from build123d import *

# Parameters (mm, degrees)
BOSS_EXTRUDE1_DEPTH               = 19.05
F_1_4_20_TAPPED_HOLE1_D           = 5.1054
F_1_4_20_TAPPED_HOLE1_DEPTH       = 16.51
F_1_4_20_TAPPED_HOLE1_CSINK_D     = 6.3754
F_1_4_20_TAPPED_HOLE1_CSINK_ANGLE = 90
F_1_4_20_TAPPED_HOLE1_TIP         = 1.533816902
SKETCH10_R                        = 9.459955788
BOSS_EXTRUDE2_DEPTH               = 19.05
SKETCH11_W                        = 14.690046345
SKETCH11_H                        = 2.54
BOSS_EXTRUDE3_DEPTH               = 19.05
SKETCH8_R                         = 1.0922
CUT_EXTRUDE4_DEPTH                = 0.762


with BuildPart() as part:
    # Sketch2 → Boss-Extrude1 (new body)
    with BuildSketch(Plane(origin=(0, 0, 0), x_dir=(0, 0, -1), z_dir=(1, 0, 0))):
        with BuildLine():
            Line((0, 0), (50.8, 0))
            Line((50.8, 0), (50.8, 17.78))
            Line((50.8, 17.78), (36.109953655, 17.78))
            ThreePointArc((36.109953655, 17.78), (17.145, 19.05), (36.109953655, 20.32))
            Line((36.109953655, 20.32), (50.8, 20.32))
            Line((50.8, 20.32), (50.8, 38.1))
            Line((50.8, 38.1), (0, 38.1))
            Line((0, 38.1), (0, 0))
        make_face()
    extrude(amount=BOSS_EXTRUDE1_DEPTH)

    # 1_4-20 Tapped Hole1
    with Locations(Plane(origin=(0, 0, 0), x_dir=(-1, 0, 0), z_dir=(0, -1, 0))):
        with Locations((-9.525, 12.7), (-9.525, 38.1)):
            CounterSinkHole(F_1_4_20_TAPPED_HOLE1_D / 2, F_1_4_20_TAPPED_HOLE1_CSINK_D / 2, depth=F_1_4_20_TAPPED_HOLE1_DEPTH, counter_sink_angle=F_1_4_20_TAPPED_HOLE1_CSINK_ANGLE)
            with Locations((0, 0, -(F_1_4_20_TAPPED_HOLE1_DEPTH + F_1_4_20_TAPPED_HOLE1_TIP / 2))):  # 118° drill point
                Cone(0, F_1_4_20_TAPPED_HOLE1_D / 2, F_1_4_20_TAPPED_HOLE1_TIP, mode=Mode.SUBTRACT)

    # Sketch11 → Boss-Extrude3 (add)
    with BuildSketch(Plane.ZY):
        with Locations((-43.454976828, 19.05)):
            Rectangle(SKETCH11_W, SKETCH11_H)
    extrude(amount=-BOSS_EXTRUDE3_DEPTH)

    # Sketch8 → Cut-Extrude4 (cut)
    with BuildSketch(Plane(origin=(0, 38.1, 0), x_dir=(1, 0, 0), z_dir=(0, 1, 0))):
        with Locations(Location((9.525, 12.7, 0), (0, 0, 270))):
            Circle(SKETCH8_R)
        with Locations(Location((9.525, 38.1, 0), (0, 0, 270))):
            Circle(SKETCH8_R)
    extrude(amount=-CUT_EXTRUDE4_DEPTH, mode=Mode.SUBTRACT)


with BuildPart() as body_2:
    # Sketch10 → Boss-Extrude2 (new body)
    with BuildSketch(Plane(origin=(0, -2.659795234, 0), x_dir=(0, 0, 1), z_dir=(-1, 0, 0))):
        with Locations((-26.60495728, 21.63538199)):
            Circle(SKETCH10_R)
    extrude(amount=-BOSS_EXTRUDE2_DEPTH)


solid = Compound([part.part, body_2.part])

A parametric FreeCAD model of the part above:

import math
import FreeCAD as App
import Part
import Sketcher
Q = App.Units.Quantity

doc = App.newDocument("Part")
body = doc.addObject("PartDesign::Body", "Body")

# Sketch on YZ plane
sketch1 = body.newObject("Sketcher::SketchObject", "Sketch")
sketch1.AttachmentSupport = (doc.getObject("YZ_Plane"), [""])
sketch1.MapMode = "FlatFace"
sketch1.addGeometry([
    Part.LineSegment(App.Vector(0, 0, 0), App.Vector(0, -50.8, 0)),  # 0
    Part.LineSegment(App.Vector(0, -50.8, 0), App.Vector(17.8, -50.8, 0)),  # 1
    Part.LineSegment(App.Vector(17.8, -50.8, 0), App.Vector(17.8, -36.1, 0)),  # 2
    Part.ArcOfCircle(Part.Circle(App.Vector(19.1, -26.7, 0), App.Vector(0, 0, 1), 9.5), math.radians(-82), math.radians(262)),  # 3
    Part.LineSegment(App.Vector(20.3, -36.1, 0), App.Vector(20.3, -50.8, 0)),  # 4
    Part.LineSegment(App.Vector(20.3, -50.8, 0), App.Vector(38.1, -50.8, 0)),  # 5
    Part.LineSegment(App.Vector(38.1, -50.8, 0), App.Vector(38.1, 0, 0)),  # 6
    Part.LineSegment(App.Vector(38.1, 0, 0), App.Vector(0, 0, 0)),  # 7
], False)
sketch1.addConstraint([
    Sketcher.Constraint("Coincident", 0, 2, 1, 1),
    Sketcher.Constraint("Coincident", 1, 2, 2, 1),
    Sketcher.Constraint("Coincident", 2, 2, 3, 2),
    Sketcher.Constraint("Coincident", 3, 1, 4, 1),
    Sketcher.Constraint("Coincident", 4, 2, 5, 1),
    Sketcher.Constraint("Coincident", 5, 2, 6, 1),
    Sketcher.Constraint("Coincident", 6, 2, 7, 1),
    Sketcher.Constraint("Coincident", 7, 2, 0, 1),
    Sketcher.Constraint("Vertical", 0),
    Sketcher.Constraint("Horizontal", 1),
    Sketcher.Constraint("Vertical", 2),
    Sketcher.Constraint("Vertical", 4),
    Sketcher.Constraint("Horizontal", 5),
    Sketcher.Constraint("Vertical", 6),
    Sketcher.Constraint("Horizontal", 7),
    Sketcher.Constraint("Coincident", 7, 2, -1, 1),
    Sketcher.Constraint("Horizontal", 2, 2, 3, 1),
    Sketcher.Constraint("Horizontal", 1, 2, 4, 2),
    Sketcher.Constraint("Equal", 1, 5),
    Sketcher.Constraint("DistanceY", 0, 2, 0, 1, Q("2 in")),
    Sketcher.Constraint("DistanceX", 1, 1, 1, 2, Q("0.7 in")),
    Sketcher.Constraint("DistanceX", 7, 2, 7, 1, Q("1.5 in")),
    Sketcher.Constraint("Radius", 3, Q("0.375 in")),
    Sketcher.Constraint("DistanceY", 3, 3, -1, 1, Q("1.05 in")),
])
pad1 = body.newObject("PartDesign::Pad", "Pad")
pad1.Profile = sketch1
pad1.Length = Q("0.75 in")

# Sketch on XZ plane
sketch2 = body.newObject("Sketcher::SketchObject", "Sketch001")
sketch2.AttachmentSupport = (doc.getObject("XZ_Plane"), [""])
sketch2.MapMode = "FlatFace"
sketch2.addGeometry([
    Part.Circle(App.Vector(9.5, -12.7, 0), App.Vector(0, 0, 1), 2.6),
    Part.Circle(App.Vector(9.5, -38.1, 0), App.Vector(0, 0, 1), 2.6),
], False)
sketch2.addConstraint([
    Sketcher.Constraint("Equal", 0, 1),
    Sketcher.Constraint("Vertical", 0, 3, 1, 3),
    Sketcher.Constraint("Diameter", 0, Q("0.201 in")),
    Sketcher.Constraint("DistanceY", 1, 3, 0, 3, Q("1 in")),
    Sketcher.Constraint("DistanceY", 0, 3, -1, 1, Q("0.5 in")),
    Sketcher.Constraint("DistanceX", -1, 1, 0, 3, Q("0.375 in")),
])
doc.recompute()
hole = body.newObject("PartDesign::Hole", "Hole")
hole.Profile = sketch2
hole.ThreadType = "None"
hole.Diameter = Q("0.201 in")
hole.DepthType = "Dimension"
hole.Depth = Q("0.65 in")
hole.DrillPoint = "Angled"
hole.DrillPointAngle = 118
hole.HoleCutType = "Countersink"
hole.HoleCutDiameter = Q("0.251 in")
hole.HoleCutCountersinkAngle = 90

# Sketch on YZ plane
sketch3 = body.newObject("Sketcher::SketchObject", "Sketch002")
sketch3.AttachmentSupport = (doc.getObject("YZ_Plane"), [""])
sketch3.MapMode = "FlatFace"
sketch3.addGeometry([
    Part.LineSegment(App.Vector(20.3, -50.8, 0), App.Vector(17.8, -50.8, 0)),
    Part.LineSegment(App.Vector(17.8, -50.8, 0), App.Vector(17.8, -36.1, 0)),
    Part.LineSegment(App.Vector(17.8, -36.1, 0), App.Vector(20.3, -36.1, 0)),
    Part.LineSegment(App.Vector(20.3, -36.1, 0), App.Vector(20.3, -50.8, 0)),
], False)
sketch3.addConstraint([
    Sketcher.Constraint("Coincident", 0, 2, 1, 1),
    Sketcher.Constraint("Coincident", 1, 2, 2, 1),
    Sketcher.Constraint("Coincident", 2, 2, 3, 1),
    Sketcher.Constraint("Coincident", 3, 2, 0, 1),
    Sketcher.Constraint("Horizontal", 0),
    Sketcher.Constraint("Vertical", 1),
    Sketcher.Constraint("Horizontal", 2),
    Sketcher.Constraint("Vertical", 3),
    Sketcher.Constraint("DistanceX", 0, 2, 0, 1, Q("0.1 in")),
    Sketcher.Constraint("DistanceY", 0, 2, -1, 1, Q("2 in")),
    Sketcher.Constraint("DistanceX", -1, 1, 0, 2, Q("0.7 in")),
    Sketcher.Constraint("DistanceY", 1, 1, 1, 2, 14.690046),
])
pad2 = body.newObject("PartDesign::Pad", "Pad001")
pad2.Profile = sketch3
pad2.Length = Q("0.75 in")

# Sketch on XZ plane
sketch4 = body.newObject("Sketcher::SketchObject", "Sketch003")
sketch4.AttachmentSupport = (doc.getObject("XZ_Plane"), [""])
sketch4.MapMode = "FlatFace"
sketch4.AttachmentOffset = App.Placement(App.Vector(0, 0, -1.5 * 25.4), App.Rotation())
sketch4.addGeometry([
    Part.Circle(App.Vector(9.5, -12.7, 0), App.Vector(0, 0, 1), 1.1),
    Part.Circle(App.Vector(9.5, -38.1, 0), App.Vector(0, 0, 1), 1.1),
], False)
sketch4.addConstraint([
    Sketcher.Constraint("Equal", 0, 1),
    Sketcher.Constraint("Vertical", 0, 3, 1, 3),
    Sketcher.Constraint("Diameter", 0, Q("0.086 in")),
    Sketcher.Constraint("DistanceY", 1, 3, 0, 3, Q("1 in")),
    Sketcher.Constraint("DistanceY", 0, 3, -1, 1, Q("0.5 in")),
    Sketcher.Constraint("DistanceX", -1, 1, 0, 3, Q("0.375 in")),
])
pocket1 = body.newObject("PartDesign::Pocket", "Pocket")
pocket1.Profile = sketch4
pocket1.Length = Q("0.03 in")
pocket1.Reversed = True
body2 = doc.addObject("PartDesign::Body", "Body001")

# Sketch on YZ plane
sketch5 = body2.newObject("Sketcher::SketchObject", "Sketch004")
sketch5.AttachmentSupport = (doc.getObject("YZ_Plane001"), [""])
sketch5.MapMode = "FlatFace"
sketch5.addGeometry(Part.Circle(App.Vector(19, -27, 0), App.Vector(0, 0, 1), 9), False)
sketch5.addConstraint([
    Sketcher.Constraint("Diameter", 0, 18.919912),
    Sketcher.Constraint("DistanceX", -1, 1, 0, 3, 18.975587),
    Sketcher.Constraint("DistanceY", 0, 3, -1, 1, 26.604957),
])
pad3 = body2.newObject("PartDesign::Pad", "Pad002")
pad3.Profile = sketch5
pad3.Length = Q("0.75 in")

doc.recompute()
